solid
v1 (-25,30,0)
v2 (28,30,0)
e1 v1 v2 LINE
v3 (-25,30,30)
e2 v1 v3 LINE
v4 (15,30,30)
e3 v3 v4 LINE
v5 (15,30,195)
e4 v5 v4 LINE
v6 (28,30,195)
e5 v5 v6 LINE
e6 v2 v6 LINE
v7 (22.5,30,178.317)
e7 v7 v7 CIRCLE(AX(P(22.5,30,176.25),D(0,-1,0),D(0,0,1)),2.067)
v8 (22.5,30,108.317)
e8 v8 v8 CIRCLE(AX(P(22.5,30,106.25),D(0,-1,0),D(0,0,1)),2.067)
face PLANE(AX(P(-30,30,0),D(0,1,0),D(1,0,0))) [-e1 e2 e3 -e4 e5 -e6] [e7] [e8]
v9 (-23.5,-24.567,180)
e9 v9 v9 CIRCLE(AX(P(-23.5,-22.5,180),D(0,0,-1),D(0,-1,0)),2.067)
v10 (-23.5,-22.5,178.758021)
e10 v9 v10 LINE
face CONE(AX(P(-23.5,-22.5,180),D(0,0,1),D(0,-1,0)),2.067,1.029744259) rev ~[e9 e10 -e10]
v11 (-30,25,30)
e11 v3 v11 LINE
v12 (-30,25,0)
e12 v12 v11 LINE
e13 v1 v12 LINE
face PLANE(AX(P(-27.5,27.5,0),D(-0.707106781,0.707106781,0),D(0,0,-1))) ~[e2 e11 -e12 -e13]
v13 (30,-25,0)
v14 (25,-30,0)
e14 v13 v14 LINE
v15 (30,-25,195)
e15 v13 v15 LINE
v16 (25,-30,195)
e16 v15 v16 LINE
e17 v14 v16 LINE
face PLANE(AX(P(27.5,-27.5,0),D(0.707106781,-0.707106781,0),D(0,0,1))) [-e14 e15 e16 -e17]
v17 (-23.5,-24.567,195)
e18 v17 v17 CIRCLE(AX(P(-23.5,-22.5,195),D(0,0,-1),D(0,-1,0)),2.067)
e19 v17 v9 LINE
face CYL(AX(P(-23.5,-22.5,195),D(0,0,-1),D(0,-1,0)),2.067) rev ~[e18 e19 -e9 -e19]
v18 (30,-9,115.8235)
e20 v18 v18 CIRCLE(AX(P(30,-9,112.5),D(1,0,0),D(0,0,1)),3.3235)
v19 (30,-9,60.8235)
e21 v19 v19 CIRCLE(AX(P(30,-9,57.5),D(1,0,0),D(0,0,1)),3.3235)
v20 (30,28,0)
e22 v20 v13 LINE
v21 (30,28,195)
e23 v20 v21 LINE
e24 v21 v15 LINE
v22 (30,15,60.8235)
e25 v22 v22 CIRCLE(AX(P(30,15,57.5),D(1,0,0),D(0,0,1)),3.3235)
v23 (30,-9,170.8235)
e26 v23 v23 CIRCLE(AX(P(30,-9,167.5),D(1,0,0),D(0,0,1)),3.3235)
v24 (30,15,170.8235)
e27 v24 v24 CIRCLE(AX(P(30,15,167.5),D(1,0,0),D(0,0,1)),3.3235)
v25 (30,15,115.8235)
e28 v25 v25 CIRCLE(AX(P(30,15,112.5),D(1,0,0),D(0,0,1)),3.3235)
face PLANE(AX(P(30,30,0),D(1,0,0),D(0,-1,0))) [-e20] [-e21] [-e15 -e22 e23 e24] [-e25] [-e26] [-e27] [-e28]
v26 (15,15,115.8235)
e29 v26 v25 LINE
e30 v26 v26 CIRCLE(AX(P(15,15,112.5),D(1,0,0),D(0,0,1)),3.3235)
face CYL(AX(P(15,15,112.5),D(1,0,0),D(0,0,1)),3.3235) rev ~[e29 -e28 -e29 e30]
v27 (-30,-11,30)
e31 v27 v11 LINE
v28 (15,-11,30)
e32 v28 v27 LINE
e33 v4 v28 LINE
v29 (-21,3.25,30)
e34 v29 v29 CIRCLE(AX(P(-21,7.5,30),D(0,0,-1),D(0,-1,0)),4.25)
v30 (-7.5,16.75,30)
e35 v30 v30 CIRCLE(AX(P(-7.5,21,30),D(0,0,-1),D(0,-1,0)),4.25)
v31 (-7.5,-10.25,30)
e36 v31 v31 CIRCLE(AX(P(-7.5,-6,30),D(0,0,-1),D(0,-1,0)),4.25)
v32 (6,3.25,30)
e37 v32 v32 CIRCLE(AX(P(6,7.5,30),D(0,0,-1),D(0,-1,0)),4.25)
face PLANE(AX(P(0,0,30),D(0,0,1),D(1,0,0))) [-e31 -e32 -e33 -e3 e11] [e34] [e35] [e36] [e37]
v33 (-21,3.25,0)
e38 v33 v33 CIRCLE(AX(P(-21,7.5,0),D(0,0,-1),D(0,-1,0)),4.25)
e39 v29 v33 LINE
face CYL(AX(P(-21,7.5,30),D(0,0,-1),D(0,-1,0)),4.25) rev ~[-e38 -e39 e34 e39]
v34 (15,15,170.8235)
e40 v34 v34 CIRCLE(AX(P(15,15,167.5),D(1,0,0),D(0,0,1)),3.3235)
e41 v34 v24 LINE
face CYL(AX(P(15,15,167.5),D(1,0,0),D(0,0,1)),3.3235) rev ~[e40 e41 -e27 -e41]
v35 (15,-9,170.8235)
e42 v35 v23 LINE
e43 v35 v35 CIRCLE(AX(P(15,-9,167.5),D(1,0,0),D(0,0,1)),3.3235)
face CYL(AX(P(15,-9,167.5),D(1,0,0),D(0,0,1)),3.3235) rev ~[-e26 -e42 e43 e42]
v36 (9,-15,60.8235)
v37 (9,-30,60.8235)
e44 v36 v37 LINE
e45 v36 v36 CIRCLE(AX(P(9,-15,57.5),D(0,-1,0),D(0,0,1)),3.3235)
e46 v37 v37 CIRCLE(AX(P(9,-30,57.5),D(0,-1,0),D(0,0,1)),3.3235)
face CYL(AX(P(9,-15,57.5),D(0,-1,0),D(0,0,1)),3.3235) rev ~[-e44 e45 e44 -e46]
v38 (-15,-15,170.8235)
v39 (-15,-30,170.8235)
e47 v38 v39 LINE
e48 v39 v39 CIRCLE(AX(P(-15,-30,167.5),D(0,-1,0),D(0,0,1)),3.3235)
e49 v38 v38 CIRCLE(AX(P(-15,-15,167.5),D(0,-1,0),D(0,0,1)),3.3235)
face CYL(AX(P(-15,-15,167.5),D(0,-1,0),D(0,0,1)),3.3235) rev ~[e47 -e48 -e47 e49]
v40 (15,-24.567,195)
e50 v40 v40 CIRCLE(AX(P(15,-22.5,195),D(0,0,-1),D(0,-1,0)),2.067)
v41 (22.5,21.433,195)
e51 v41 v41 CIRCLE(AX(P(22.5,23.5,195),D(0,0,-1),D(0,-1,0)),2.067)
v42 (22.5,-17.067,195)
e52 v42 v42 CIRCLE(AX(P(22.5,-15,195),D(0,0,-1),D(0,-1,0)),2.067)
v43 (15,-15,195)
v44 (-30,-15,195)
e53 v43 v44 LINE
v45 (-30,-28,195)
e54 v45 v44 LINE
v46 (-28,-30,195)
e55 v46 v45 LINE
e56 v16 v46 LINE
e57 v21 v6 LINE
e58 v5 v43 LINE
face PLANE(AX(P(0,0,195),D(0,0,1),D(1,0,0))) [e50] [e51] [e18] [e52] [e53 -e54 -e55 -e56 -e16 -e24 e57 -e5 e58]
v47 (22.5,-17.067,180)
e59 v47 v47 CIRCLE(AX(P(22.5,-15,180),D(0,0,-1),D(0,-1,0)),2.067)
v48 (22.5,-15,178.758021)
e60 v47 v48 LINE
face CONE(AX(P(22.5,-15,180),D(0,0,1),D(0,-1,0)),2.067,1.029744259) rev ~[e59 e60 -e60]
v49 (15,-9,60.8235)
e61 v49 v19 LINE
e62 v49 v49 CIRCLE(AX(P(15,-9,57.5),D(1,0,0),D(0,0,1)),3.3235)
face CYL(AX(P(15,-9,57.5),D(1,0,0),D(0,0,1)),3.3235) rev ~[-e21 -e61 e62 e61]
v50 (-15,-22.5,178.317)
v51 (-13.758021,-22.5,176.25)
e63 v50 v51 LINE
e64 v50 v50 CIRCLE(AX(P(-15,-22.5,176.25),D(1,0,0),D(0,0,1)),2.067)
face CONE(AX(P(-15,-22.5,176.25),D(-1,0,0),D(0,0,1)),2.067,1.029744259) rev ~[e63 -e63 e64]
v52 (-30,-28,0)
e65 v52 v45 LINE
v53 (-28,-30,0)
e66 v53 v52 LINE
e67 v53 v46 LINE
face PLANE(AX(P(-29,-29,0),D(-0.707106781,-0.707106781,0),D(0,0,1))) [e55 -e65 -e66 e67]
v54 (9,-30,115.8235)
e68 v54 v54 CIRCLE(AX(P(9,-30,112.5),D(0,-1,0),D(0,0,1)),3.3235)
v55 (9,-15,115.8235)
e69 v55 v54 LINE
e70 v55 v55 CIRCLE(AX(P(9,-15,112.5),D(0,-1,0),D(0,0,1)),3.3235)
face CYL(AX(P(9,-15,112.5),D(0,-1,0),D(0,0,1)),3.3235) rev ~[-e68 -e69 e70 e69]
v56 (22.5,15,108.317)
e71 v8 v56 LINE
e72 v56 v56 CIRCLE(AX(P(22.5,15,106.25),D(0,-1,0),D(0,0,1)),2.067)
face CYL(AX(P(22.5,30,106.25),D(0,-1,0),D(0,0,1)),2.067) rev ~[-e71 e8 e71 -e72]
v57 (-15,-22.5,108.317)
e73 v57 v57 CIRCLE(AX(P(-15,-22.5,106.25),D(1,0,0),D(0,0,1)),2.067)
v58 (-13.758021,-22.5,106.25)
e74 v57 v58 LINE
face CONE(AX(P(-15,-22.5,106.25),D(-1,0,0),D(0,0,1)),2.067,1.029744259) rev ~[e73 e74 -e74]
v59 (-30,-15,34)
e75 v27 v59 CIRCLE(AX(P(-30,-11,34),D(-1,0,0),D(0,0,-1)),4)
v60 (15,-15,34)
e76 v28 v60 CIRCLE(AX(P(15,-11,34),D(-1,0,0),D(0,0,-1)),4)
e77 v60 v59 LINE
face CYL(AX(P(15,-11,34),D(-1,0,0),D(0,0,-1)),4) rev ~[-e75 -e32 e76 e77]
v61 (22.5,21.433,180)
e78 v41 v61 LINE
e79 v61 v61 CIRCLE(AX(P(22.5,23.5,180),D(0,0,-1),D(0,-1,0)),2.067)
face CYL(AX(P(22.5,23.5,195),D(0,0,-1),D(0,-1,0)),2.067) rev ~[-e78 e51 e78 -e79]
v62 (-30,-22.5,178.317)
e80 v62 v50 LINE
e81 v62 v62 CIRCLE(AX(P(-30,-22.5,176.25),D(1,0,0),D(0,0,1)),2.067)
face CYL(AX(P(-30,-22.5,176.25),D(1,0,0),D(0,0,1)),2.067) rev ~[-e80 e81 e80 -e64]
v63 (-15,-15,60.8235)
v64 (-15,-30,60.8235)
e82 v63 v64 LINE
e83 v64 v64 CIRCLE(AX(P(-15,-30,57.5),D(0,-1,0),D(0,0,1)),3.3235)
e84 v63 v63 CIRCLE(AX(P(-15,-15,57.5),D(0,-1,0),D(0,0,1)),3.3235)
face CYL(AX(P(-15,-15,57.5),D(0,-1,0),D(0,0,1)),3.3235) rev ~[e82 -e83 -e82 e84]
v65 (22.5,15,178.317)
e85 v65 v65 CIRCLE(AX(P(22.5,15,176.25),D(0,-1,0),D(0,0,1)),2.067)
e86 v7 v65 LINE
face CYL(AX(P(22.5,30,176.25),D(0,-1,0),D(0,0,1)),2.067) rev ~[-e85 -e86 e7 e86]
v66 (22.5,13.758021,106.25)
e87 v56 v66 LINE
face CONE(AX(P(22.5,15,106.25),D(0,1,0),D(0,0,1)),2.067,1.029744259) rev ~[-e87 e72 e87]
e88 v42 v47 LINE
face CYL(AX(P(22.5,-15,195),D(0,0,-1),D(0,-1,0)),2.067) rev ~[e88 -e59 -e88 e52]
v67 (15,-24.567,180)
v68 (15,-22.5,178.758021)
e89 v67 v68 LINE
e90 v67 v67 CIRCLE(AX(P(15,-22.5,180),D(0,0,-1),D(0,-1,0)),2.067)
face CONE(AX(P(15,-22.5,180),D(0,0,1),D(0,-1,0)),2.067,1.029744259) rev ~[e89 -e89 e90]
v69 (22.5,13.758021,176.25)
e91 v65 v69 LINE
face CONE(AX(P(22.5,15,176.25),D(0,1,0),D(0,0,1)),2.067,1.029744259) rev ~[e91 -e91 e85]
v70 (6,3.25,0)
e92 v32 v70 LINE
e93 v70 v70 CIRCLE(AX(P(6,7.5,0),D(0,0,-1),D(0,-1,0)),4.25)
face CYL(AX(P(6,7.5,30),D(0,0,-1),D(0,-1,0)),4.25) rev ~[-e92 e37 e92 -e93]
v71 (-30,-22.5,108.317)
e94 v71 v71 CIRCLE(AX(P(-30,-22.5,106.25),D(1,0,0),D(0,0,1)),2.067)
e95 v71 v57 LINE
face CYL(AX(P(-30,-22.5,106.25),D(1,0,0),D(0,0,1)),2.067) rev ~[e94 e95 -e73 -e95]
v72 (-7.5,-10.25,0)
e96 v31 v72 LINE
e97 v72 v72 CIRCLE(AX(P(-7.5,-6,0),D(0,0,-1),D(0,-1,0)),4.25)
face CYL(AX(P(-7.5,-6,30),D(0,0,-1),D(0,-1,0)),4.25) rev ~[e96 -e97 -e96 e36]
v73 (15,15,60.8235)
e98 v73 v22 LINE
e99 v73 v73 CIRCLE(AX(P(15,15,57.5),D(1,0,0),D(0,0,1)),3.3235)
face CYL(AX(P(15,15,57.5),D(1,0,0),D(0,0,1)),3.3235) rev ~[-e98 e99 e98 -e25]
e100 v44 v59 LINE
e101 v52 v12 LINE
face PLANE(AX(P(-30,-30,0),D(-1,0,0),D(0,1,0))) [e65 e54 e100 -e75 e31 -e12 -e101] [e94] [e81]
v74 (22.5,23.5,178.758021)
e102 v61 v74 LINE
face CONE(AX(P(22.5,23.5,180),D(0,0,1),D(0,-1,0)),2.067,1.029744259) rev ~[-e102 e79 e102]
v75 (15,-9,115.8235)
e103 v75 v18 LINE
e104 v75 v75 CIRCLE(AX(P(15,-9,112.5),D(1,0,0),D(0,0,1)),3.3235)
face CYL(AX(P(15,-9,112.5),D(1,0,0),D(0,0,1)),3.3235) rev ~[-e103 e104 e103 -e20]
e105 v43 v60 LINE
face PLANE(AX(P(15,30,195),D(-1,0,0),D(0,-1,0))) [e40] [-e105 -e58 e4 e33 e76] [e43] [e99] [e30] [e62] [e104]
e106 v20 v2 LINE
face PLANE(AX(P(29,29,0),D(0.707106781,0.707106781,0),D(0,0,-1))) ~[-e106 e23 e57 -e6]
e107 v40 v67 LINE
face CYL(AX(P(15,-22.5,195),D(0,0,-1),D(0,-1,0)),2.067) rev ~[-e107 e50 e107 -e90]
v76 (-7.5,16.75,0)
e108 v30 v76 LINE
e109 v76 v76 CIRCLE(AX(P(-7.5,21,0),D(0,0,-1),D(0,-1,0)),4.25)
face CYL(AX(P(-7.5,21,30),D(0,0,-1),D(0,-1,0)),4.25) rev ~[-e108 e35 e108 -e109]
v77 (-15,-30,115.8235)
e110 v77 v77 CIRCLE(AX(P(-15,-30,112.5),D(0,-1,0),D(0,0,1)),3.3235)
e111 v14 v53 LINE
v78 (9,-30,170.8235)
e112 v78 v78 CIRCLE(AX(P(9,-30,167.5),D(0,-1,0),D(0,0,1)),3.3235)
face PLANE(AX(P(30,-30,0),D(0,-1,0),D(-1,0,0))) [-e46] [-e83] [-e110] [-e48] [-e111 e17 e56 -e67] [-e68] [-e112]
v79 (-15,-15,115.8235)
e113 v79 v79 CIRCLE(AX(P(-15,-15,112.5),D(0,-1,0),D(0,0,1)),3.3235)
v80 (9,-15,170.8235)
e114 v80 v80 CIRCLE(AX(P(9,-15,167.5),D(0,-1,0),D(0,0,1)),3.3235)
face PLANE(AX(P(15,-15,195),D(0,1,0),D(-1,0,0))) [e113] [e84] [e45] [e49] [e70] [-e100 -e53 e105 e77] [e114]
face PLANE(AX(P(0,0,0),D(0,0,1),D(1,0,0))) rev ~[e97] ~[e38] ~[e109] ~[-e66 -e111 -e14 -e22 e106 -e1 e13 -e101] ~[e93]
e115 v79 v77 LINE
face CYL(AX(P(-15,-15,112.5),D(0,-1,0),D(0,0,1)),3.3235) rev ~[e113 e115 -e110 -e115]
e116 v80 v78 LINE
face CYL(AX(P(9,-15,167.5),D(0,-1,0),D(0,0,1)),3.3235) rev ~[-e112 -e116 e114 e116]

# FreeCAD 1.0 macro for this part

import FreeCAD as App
import Part
import Sketcher
Q = App.Units.Quantity


def edges_at(feature, points):
    """Names of the edges that pass closest to the given points."""
    edges = feature.Shape.Edges
    near = lambda p: min(range(len(edges)), key=lambda i: edges[i].distToShape(Part.Vertex(*p))[0])
    return sorted({f"Edge{near(p) + 1}" for p in points})


def add_polygon(sketch, points):
    """Adds a closed chain of lines whose ends are joined by coincident constraints."""
    first, n = sketch.GeometryCount, len(points)
    for a, b in zip(points, points[1:] + points[:1]):
        sketch.addGeometry(Part.LineSegment(App.Vector(*a, 0), App.Vector(*b, 0)), False)
    for i in range(n):
        sketch.addConstraint(Sketcher.Constraint("Coincident", first + i, 2, first + (i + 1) % n, 1))

doc = App.newDocument("Part")
body = doc.addObject("PartDesign::Body", "Body")

# Sketch on XY plane
sketch1 = body.newObject("Sketcher::SketchObject", "Sketch")
sketch1.AttachmentSupport = (doc.getObject("XY_Plane"), [""])
sketch1.MapMode = "FlatFace"
add_polygon(sketch1, [(30, 30), (-30, 30), (-30, -30), (30, -30)])  # lines 0-3
sketch1.addConstraint([
    Sketcher.Constraint("Horizontal", 0),
    Sketcher.Constraint("Vertical", 1),
    Sketcher.Constraint("Horizontal", 2),
    Sketcher.Constraint("Vertical", 3),
    Sketcher.Constraint("Symmetric", 0, 2, 2, 2, -1, 1),
    Sketcher.Constraint("Equal", 2, 1),
    Sketcher.Constraint("DistanceX", 0, 2, 0, 1, Q("60 mm")),
])
pad1 = body.newObject("PartDesign::Pad", "Pad")
pad1.Profile = sketch1
pad1.Length = 195

# Sketch on XY plane
sketch2 = body.newObject("Sketcher::SketchObject", "Sketch001")
sketch2.AttachmentSupport = (doc.getObject("XY_Plane"), [""])
sketch2.MapMode = "FlatFace"
sketch2.AttachmentOffset = App.Placement(App.Vector(0, 0, 195), App.Rotation())
add_polygon(sketch2, [(15, 30), (-30, 30), (-30, -15), (15, -15)])  # lines 0-3
sketch2.addConstraint([
    Sketcher.Constraint("Horizontal", 0),
    Sketcher.Constraint("Vertical", 1),
    Sketcher.Constraint("Horizontal", 2),
    Sketcher.Constraint("Vertical", 3),
    Sketcher.Constraint("Equal", 2, 1),
    Sketcher.Constraint("DistanceY", 1, 2, -1, 1, Q("15 mm")),
    Sketcher.Constraint("DistanceX", -1, 1, 2, 2, Q("15 mm")),
    Sketcher.Constraint("DistanceX", 0, 2, 0, 1, Q("45 mm")),
])
pocket1 = body.newObject("PartDesign::Pocket", "Pocket")
pocket1.Profile = sketch2
pocket1.Length = 165

# Sketch on XY plane
sketch3 = body.newObject("Sketcher::SketchObject", "Sketch002")
sketch3.AttachmentSupport = (doc.getObject("XY_Plane"), [""])
sketch3.MapMode = "FlatFace"
sketch3.AttachmentOffset = App.Placement(App.Vector(0, 0, 30), App.Rotation())
sketch3.addGeometry([
    Part.Circle(App.Vector(6, 7.5, 0), App.Vector(0, 0, 1), 4.2),
    Part.Circle(App.Vector(-21, 7.5, 0), App.Vector(0, 0, 1), 4.2),
    Part.Circle(App.Vector(-7.5, 21, 0), App.Vector(0, 0, 1), 4.2),
    Part.Circle(App.Vector(-7.5, -6, 0), App.Vector(0, 0, 1), 4.2),
], False)
sketch3.addConstraint([
    Sketcher.Constraint("Equal", 0, 1),
    Sketcher.Constraint("Equal", 1, 2),
    Sketcher.Constraint("Equal", 2, 3),
    Sketcher.Constraint("Horizontal", 0, 3, 1, 3),
    Sketcher.Constraint("Vertical", 2, 3, 3, 3),
    Sketcher.Constraint("Diameter", 0, Q("8.5 mm")),
    Sketcher.Constraint("DistanceX", -1, 1, 0, 3, Q("6 mm")),
    Sketcher.Constraint("DistanceX", 1, 3, -1, 1, Q("21 mm")),
    Sketcher.Constraint("DistanceY", -1, 1, 2, 3, Q("21 mm")),
    Sketcher.Constraint("DistanceY", 3, 3, -1, 1, Q("6 mm")),
    Sketcher.Constraint("DistanceY", -1, 1, 0, 3, Q("7.5 mm")),
    Sketcher.Constraint("DistanceX", 2, 3, -1, 1, Q("7.5 mm")),
])
doc.recompute()
hole = body.newObject("PartDesign::Hole", "Hole")
hole.Profile = sketch3
hole.ThreadType = "None"
hole.Diameter = 8.5
hole.DepthType = "ThroughAll"
doc.recompute()

fillet = body.newObject("PartDesign::Fillet", "Fillet")
fillet.Base = (hole, edges_at(hole, [(-7.5, -15, 30)]))
fillet.Radius = 4

# Sketch on YZ plane
sketch4 = body.newObject("Sketcher::SketchObject", "Sketch003")
sketch4.AttachmentSupport = (doc.getObject("YZ_Plane"), [""])
sketch4.MapMode = "FlatFace"
sketch4.AttachmentOffset = App.Placement(App.Vector(0, 0, 15), App.Rotation())
sketch4.addGeometry([
    Part.Circle(App.Vector(15, 167.5, 0), App.Vector(0, 0, 1), 3.3),  # 0
    Part.Circle(App.Vector(-9, 167.5, 0), App.Vector(0, 0, 1), 3.3),  # 1
    Part.Circle(App.Vector(15, 112.5, 0), App.Vector(0, 0, 1), 3.3),  # 2
    Part.Circle(App.Vector(-9, 112.5, 0), App.Vector(0, 0, 1), 3.3),  # 3
    Part.Circle(App.Vector(-9, 57.5, 0), App.Vector(0, 0, 1), 3.3),  # 4
    Part.Circle(App.Vector(15, 57.5, 0), App.Vector(0, 0, 1), 3.3),  # 5
], False)
sketch4.addConstraint([
    Sketcher.Constraint("Equal", 0, 1),
    Sketcher.Constraint("Equal", 1, 2),
    Sketcher.Constraint("Equal", 2, 3),
    Sketcher.Constraint("Equal", 3, 4),
    Sketcher.Constraint("Equal", 4, 5),
    Sketcher.Constraint("Horizontal", 0, 3, 1, 3),
    Sketcher.Constraint("Horizontal", 2, 3, 3, 3),
    Sketcher.Constraint("Horizontal", 4, 3, 5, 3),
    Sketcher.Constraint("Vertical", 0, 3, 2, 3),
    Sketcher.Constraint("Vertical", 1, 3, 3, 3),
    Sketcher.Constraint("Vertical", 3, 3, 4, 3),
    Sketcher.Constraint("Vertical", 2, 3, 5, 3),
    Sketcher.Constraint("Diameter", 0, Q("6.647 mm")),
    Sketcher.Constraint("DistanceX", -1, 1, 0, 3, Q("15 mm")),
    Sketcher.Constraint("DistanceX", 1, 3, -1, 1, Q("9 mm")),
    Sketcher.Constraint("DistanceY", 2, 3, 0, 3, Q("55 mm")),
    Sketcher.Constraint("DistanceY", 4, 3, 3, 3, Q("55 mm")),
    Sketcher.Constraint("DistanceY", -1, 1, 0, 3, Q("167.5 mm")),
])
doc.recompute()
hole2 = body.newObject("PartDesign::Hole", "Hole001")
hole2.Profile = sketch4
hole2.ThreadType = "None"
hole2.Diameter = 6.647
hole2.DepthType = "ThroughAll"
hole2.Reversed = True

# Sketch on XZ plane
sketch5 = body.newObject("Sketcher::SketchObject", "Sketch004")
sketch5.AttachmentSupport = (doc.getObject("XZ_Plane"), [""])
sketch5.MapMode = "FlatFace"
sketch5.AttachmentOffset = App.Placement(App.Vector(0, 0, 15), App.Rotation())
sketch5.addGeometry([
    Part.Circle(App.Vector(9, 167.5, 0), App.Vector(0, 0, 1), 3.3),  # 0
    Part.Circle(App.Vector(-15, 167.5, 0), App.Vector(0, 0, 1), 3.3),  # 1
    Part.Circle(App.Vector(9, 112.5, 0), App.Vector(0, 0, 1), 3.3),  # 2
    Part.Circle(App.Vector(-15, 112.5, 0), App.Vector(0, 0, 1), 3.3),  # 3
    Part.Circle(App.Vector(9, 57.5, 0), App.Vector(0, 0, 1), 3.3),  # 4
    Part.Circle(App.Vector(-15, 57.5, 0), App.Vector(0, 0, 1), 3.3),  # 5
], False)
sketch5.addConstraint([
    Sketcher.Constraint("Equal", 0, 1),
    Sketcher.Constraint("Equal", 1, 2),
    Sketcher.Constraint("Equal", 2, 3),
    Sketcher.Constraint("Equal", 3, 4),
    Sketcher.Constraint("Equal", 4, 5),
    Sketcher.Constraint("Horizontal", 0, 3, 1, 3),
    Sketcher.Constraint("Horizontal", 2, 3, 3, 3),
    Sketcher.Constraint("Horizontal", 4, 3, 5, 3),
    Sketcher.Constraint("Vertical", 0, 3, 2, 3),
    Sketcher.Constraint("Vertical", 1, 3, 3, 3),
    Sketcher.Constraint("Vertical", 2, 3, 4, 3),
    Sketcher.Constraint("Vertical", 3, 3, 5, 3),
    Sketcher.Constraint("Diameter", 0, Q("6.647 mm")),
    Sketcher.Constraint("DistanceX", -1, 1, 0, 3, Q("9 mm")),
    Sketcher.Constraint("DistanceX", 1, 3, -1, 1, Q("15 mm")),
    Sketcher.Constraint("DistanceY", 2, 3, 0, 3, Q("55 mm")),
    Sketcher.Constraint("DistanceY", 4, 3, 2, 3, Q("55 mm")),
    Sketcher.Constraint("DistanceY", -1, 1, 0, 3, Q("167.5 mm")),
])
doc.recompute()
hole3 = body.newObject("PartDesign::Hole", "Hole002")
hole3.Profile = sketch5
hole3.ThreadType = "None"
hole3.Diameter = 6.647
hole3.DepthType = "ThroughAll"
hole3.Reversed = True

# Sketch on YZ plane
sketch6 = body.newObject("Sketcher::SketchObject", "Sketch005")
sketch6.AttachmentSupport = (doc.getObject("YZ_Plane"), [""])
sketch6.MapMode = "FlatFace"
sketch6.AttachmentOffset = App.Placement(App.Vector(0, 0, -30), App.Rotation())
sketch6.addGeometry([
    Part.Circle(App.Vector(-22.5, 176.2, 0), App.Vector(0, 0, 1), 2.1),
    Part.Circle(App.Vector(-22.5, 106.2, 0), App.Vector(0, 0, 1), 2.1),
], False)
sketch6.addConstraint([
    Sketcher.Constraint("Equal", 0, 1),
    Sketcher.Constraint("Vertical", 0, 3, 1, 3),
    Sketcher.Constraint("Diameter", 0, Q("4.134 mm")),
    Sketcher.Constraint("DistanceY", 1, 3, 0, 3, Q("70 mm")),
    Sketcher.Constraint("DistanceX", 0, 3, -1, 1, Q("22.5 mm")),
    Sketcher.Constraint("DistanceY", -1, 1, 0, 3, Q("176.25 mm")),
])
doc.recompute()
hole4 = body.newObject("PartDesign::Hole", "Hole003")
hole4.Profile = sketch6
hole4.ThreadType = "None"
hole4.Diameter = 4.134
hole4.DepthType = "Dimension"
hole4.Depth = 15
hole4.DrillPoint = "Angled"
hole4.DrillPointAngle = 118
hole4.Reversed = True

# Sketch on XZ plane
sketch7 = body.newObject("Sketcher::SketchObject", "Sketch006")
sketch7.AttachmentSupport = (doc.getObject("XZ_Plane"), [""])
sketch7.MapMode = "FlatFace"
sketch7.AttachmentOffset = App.Placement(App.Vector(0, 0, -30), App.Rotation())
sketch7.addGeometry([
    Part.Circle(App.Vector(22.5, 176.2, 0), App.Vector(0, 0, 1), 2.1),
    Part.Circle(App.Vector(22.5, 106.2, 0), App.Vector(0, 0, 1), 2.1),
], False)
sketch7.addConstraint([
    Sketcher.Constraint("Equal", 0, 1),
    Sketcher.Constraint("Vertical", 0, 3, 1, 3),
    Sketcher.Constraint("Diameter", 0, Q("4.134 mm")),
    Sketcher.Constraint("DistanceY", 1, 3, 0, 3, Q("70 mm")),
    Sketcher.Constraint("DistanceX", -1, 1, 0, 3, Q("22.5 mm")),
    Sketcher.Constraint("DistanceY", -1, 1, 0, 3, Q("176.25 mm")),
])
doc.recompute()
hole5 = body.newObject("PartDesign::Hole", "Hole004")
hole5.Profile = sketch7
hole5.ThreadType = "None"
hole5.Diameter = 4.134
hole5.DepthType = "Dimension"
hole5.Depth = 15
hole5.DrillPoint = "Angled"
hole5.DrillPointAngle = 118
hole5.Reversed = True
doc.recompute()

chamfer = body.newObject("PartDesign::Chamfer", "Chamfer")
chamfer.Base = (hole5, edges_at(hole5, [(30, -30, 97.5), (-30, 30, 15)]))
chamfer.Size = 5
doc.recompute()

chamfer2 = body.newObject("PartDesign::Chamfer", "Chamfer001")
chamfer2.Base = (chamfer, edges_at(chamfer, [(30, 30, 97.5), (-30, -30, 97.5)]))
chamfer2.Size = 2

# Sketch on XY plane
sketch8 = body.newObject("Sketcher::SketchObject", "Sketch007")
sketch8.AttachmentSupport = (doc.getObject("XY_Plane"), [""])
sketch8.MapMode = "FlatFace"
sketch8.AttachmentOffset = App.Placement(App.Vector(0, 0, 195), App.Rotation())
sketch8.addGeometry([
    Part.Circle(App.Vector(-23.5, -22.5, 0), App.Vector(0, 0, 1), 2.1),
    Part.Circle(App.Vector(15, -22.5, 0), App.Vector(0, 0, 1), 2.1),
    Part.Circle(App.Vector(22.5, 23.5, 0), App.Vector(0, 0, 1), 2.1),
    Part.Circle(App.Vector(22.5, -15, 0), App.Vector(0, 0, 1), 2.1),
], False)
sketch8.addConstraint([
    Sketcher.Constraint("Equal", 0, 1),
    Sketcher.Constraint("Equal", 1, 2),
    Sketcher.Constraint("Equal", 2, 3),
    Sketcher.Constraint("Horizontal", 0, 3, 1, 3),
    Sketcher.Constraint("Vertical", 2, 3, 3, 3),
    Sketcher.Constraint("Diameter", 0, Q("4.134 mm")),
    Sketcher.Constraint("DistanceX", -1, 1, 1, 3, Q("15 mm")),
    Sketcher.Constraint("DistanceY", 3, 3, -1, 1, Q("15 mm")),
    Sketcher.Constraint("DistanceY", 1, 3, 2, 3, Q("46 mm")),
    Sketcher.Constraint("DistanceX", 0, 3, 2, 3, Q("46 mm")),
    Sketcher.Constraint("DistanceX", 0, 3, -1, 1, Q("23.5 mm")),
    Sketcher.Constraint("DistanceY", 0, 3, -1, 1, Q("22.5 mm")),
])
doc.recompute()
hole6 = body.newObject("PartDesign::Hole", "Hole005")
hole6.Profile = sketch8
hole6.ThreadType = "None"
hole6.Diameter = 4.134
hole6.DepthType = "Dimension"
hole6.Depth = 15
hole6.DrillPoint = "Angled"
hole6.DrillPointAngle = 118

doc.recompute()
